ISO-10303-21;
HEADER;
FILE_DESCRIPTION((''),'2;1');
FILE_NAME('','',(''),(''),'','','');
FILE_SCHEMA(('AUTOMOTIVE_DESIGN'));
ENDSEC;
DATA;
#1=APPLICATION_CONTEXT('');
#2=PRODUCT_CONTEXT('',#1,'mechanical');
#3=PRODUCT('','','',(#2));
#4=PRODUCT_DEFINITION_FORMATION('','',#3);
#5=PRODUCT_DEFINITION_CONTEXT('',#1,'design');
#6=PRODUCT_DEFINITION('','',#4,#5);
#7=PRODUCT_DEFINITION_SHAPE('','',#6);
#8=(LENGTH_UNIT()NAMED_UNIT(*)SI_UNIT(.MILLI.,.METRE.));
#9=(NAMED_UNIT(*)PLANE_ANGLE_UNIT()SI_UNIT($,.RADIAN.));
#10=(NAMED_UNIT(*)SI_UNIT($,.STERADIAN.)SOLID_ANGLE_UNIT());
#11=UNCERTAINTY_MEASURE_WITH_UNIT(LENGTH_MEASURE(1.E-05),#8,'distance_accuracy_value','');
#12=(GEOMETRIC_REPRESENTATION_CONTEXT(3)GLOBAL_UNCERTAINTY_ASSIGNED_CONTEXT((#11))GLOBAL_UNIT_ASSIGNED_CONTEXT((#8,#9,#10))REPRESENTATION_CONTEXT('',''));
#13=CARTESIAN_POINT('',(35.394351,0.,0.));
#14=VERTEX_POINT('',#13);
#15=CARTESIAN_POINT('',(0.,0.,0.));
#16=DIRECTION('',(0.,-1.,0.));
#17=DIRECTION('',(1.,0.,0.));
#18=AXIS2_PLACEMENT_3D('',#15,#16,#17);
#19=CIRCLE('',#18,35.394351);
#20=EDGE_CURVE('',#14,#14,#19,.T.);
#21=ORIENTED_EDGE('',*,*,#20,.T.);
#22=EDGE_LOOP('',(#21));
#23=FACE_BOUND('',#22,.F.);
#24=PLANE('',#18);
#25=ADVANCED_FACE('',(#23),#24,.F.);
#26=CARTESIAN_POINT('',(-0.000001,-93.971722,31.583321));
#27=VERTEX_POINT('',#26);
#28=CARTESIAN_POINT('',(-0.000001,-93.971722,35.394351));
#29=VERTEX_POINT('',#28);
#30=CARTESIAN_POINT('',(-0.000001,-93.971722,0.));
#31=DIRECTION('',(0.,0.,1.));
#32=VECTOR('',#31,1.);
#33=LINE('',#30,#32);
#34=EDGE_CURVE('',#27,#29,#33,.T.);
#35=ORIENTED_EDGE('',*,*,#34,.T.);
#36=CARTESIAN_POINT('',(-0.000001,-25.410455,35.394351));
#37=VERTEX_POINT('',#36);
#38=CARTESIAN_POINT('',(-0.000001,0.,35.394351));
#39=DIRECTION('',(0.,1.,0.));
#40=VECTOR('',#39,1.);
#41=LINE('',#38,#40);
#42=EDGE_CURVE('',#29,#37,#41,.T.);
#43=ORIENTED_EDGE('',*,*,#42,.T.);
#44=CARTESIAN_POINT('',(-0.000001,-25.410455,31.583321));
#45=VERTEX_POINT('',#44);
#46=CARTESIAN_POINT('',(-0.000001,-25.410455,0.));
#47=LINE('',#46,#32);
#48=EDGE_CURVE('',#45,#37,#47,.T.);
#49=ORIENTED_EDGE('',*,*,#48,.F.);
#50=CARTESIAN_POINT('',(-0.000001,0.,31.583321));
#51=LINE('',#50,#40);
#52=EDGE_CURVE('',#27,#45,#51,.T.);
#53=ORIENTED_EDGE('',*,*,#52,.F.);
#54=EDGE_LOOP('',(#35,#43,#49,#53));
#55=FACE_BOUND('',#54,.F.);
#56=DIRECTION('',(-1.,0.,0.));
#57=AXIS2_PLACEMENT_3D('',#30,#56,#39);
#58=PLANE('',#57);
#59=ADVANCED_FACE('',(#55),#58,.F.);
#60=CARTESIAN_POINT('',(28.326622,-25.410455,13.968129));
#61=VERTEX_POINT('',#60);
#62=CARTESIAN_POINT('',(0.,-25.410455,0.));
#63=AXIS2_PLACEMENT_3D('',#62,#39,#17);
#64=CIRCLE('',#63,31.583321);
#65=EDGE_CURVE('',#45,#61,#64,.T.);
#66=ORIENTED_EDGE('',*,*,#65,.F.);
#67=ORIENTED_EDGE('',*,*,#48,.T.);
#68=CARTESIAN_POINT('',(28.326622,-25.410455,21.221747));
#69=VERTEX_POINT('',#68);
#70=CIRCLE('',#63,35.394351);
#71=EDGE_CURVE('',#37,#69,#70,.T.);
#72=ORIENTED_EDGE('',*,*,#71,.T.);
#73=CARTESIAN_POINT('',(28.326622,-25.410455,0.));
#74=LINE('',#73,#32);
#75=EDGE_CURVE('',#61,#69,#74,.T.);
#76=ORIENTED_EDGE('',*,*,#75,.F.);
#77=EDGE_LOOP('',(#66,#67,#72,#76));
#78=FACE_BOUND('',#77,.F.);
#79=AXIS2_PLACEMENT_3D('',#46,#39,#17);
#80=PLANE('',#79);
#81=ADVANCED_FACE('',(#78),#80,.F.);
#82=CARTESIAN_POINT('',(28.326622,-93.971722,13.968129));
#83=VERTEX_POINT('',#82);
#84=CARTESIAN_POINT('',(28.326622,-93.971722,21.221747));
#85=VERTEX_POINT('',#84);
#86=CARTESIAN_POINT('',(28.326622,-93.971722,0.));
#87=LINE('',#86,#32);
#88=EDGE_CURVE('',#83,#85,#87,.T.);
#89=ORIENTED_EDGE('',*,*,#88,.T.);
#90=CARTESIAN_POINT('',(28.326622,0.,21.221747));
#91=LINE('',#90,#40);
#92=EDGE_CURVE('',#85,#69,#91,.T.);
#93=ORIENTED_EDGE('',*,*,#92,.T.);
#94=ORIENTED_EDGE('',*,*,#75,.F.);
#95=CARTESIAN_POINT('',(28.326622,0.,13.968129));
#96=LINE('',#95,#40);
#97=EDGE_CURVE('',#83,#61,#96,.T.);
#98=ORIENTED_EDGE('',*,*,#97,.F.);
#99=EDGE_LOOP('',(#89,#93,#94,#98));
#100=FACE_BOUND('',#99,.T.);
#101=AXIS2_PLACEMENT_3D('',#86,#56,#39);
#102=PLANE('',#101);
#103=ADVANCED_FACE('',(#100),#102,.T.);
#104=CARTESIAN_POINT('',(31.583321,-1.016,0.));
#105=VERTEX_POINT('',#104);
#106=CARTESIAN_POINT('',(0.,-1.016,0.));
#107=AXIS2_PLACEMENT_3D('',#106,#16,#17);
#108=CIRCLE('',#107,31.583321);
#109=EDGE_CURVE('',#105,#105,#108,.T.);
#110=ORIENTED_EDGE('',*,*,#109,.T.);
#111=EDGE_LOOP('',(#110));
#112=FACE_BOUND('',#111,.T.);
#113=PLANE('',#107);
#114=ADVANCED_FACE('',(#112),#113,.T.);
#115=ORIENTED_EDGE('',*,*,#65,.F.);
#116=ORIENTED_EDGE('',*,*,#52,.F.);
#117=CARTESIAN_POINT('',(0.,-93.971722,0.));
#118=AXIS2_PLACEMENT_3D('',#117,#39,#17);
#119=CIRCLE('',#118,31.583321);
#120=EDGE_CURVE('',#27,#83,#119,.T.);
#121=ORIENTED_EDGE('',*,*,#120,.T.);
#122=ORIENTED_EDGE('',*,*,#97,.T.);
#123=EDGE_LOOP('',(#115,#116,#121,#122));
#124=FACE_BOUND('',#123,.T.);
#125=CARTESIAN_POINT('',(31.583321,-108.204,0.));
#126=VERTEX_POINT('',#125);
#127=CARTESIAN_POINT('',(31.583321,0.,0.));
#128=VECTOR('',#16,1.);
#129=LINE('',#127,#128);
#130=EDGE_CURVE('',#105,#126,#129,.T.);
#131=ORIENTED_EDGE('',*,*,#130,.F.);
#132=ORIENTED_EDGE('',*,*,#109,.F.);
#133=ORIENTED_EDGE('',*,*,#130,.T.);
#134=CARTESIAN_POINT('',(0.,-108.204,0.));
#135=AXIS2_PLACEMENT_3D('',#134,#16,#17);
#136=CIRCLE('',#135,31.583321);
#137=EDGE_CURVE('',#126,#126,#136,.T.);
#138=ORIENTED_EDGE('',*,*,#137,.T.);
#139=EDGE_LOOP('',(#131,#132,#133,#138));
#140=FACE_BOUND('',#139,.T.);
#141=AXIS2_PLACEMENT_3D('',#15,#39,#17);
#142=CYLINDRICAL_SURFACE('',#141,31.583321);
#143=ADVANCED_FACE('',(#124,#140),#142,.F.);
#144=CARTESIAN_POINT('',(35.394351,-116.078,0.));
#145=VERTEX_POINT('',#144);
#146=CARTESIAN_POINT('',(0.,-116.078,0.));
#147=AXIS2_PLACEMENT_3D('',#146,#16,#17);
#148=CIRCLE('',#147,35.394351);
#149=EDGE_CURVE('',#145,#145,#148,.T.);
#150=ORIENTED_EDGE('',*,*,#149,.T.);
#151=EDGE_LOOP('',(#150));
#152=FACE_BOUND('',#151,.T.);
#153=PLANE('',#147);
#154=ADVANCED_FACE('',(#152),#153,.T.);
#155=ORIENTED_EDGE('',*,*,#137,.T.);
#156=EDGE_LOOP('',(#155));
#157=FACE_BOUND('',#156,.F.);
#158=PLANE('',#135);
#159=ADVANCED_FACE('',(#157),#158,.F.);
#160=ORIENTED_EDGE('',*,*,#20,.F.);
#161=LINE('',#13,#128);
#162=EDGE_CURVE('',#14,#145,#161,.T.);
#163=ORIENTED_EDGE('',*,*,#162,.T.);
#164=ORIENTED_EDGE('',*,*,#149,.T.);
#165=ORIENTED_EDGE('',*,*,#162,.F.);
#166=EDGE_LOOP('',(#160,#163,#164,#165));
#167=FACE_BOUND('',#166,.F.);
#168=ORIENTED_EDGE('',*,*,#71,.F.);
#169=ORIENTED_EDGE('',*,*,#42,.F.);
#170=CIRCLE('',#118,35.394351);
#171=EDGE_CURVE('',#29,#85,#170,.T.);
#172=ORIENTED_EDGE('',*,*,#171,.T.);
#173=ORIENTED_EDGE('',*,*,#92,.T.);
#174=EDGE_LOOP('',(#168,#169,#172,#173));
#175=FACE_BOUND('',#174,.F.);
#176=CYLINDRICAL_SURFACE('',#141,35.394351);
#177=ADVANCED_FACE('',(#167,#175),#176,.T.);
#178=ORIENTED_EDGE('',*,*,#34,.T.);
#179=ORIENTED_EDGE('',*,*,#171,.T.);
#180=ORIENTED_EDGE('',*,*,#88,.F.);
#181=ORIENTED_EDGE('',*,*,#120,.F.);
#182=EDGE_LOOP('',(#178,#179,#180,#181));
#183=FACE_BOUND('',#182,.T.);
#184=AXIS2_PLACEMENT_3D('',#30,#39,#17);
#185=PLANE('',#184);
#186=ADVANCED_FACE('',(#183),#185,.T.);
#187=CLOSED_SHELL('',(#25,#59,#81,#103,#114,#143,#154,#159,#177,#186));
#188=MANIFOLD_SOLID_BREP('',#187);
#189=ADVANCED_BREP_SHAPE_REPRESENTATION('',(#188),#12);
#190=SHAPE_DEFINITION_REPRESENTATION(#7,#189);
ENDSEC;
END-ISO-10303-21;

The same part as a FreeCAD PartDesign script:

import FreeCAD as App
import Part
import Sketcher
Q = App.Units.Quantity


def add_polygon(sketch, points):
    """Adds a closed chain of lines whose ends are joined by coincident constraints."""
    first, n = sketch.GeometryCount, len(points)
    for a, b in zip(points, points[1:] + points[:1]):
        sketch.addGeometry(Part.LineSegment(App.Vector(*a, 0), App.Vector(*b, 0)), False)
    for i in range(n):
        sketch.addConstraint(Sketcher.Constraint("Coincident", first + i, 2, first + (i + 1) % n, 1))

doc = App.newDocument("Part")
body = doc.addObject("PartDesign::Body", "Body")

# Sketch on XZ plane
sketch1 = body.newObject("Sketcher::SketchObject", "Sketch")
sketch1.AttachmentSupport = (doc.getObject("XZ_Plane"), [""])
sketch1.MapMode = "FlatFace"
sketch1.addGeometry(Part.Circle(App.Vector(0, 0, 0), App.Vector(0, 0, 1), 35), False)
sketch1.addConstraint(Sketcher.Constraint("Coincident", 0, 3, -1, 1))
sketch1.addConstraint(Sketcher.Constraint("Diameter", 0, Q("70.788702 mm")))
pad1 = body.newObject("PartDesign::Pad", "Pad")
pad1.Profile = sketch1
pad1.Length = Q("4.57 in")

# Sketch on XZ plane
sketch2 = body.newObject("Sketcher::SketchObject", "Sketch001")
sketch2.AttachmentSupport = (doc.getObject("XZ_Plane"), [""])
sketch2.MapMode = "FlatFace"
sketch2.addGeometry(Part.Circle(App.Vector(0, 0, 0), App.Vector(0, 0, 1), 32), False)
sketch2.addConstraint(Sketcher.Constraint("Coincident", 0, 3, -1, 1))
sketch2.addConstraint(Sketcher.Constraint("Diameter", 0, Q("63.166642 mm")))
pocket1 = body.newObject("PartDesign::Pocket", "Pocket")
pocket1.Profile = sketch2
pocket1.Length = Q("4.26 in")
pocket1.Reversed = True

# Sketch on XZ plane
sketch3 = body.newObject("Sketcher::SketchObject", "Sketch002")
sketch3.AttachmentSupport = (doc.getObject("XZ_Plane"), [""])
sketch3.MapMode = "FlatFace"
sketch3.addGeometry(Part.Circle(App.Vector(0, 0, 0), App.Vector(0, 0, 1), 32), False)
sketch3.addConstraint(Sketcher.Constraint("Coincident", 0, 3, -1, 1))
sketch3.addConstraint(Sketcher.Constraint("Diameter", 0, Q("63.166642 mm")))
pad2 = body.newObject("PartDesign::Pad", "Pad001")
pad2.Profile = sketch3
pad2.Length = Q("0.04 in")

# Sketch on XY plane
sketch4 = body.newObject("Sketcher::SketchObject", "Sketch003")
sketch4.AttachmentSupport = (doc.getObject("XY_Plane"), [""])
sketch4.MapMode = "FlatFace"
add_polygon(sketch4, [(0, -25), (0, -94), (28, -94), (28, -25)])  # lines 0-3
sketch4.addConstraint(Sketcher.Constraint("Vertical", 0))
sketch4.addConstraint(Sketcher.Constraint("Horizontal", 1))
sketch4.addConstraint(Sketcher.Constraint("Vertical", 2))
sketch4.addConstraint(Sketcher.Constraint("Horizontal", 3))
sketch4.addConstraint(Sketcher.Constraint("PointOnObject", 0, 2, -2))
sketch4.addConstraint(Sketcher.Constraint("DistanceX", 1, 1, 1, 2, Q("28.326623 mm")))
sketch4.addConstraint(Sketcher.Constraint("DistanceY", 0, 2, 0, 1, Q("68.561267 mm")))
sketch4.addConstraint(Sketcher.Constraint("DistanceY", 0, 2, -1, 1, Q("93.971722 mm")))
pocket2 = body.newObject("PartDesign::Pocket", "Pocket001")
pocket2.Profile = sketch4
pocket2.Length = 66.7
pocket2.Reversed = True

doc.recompute()
